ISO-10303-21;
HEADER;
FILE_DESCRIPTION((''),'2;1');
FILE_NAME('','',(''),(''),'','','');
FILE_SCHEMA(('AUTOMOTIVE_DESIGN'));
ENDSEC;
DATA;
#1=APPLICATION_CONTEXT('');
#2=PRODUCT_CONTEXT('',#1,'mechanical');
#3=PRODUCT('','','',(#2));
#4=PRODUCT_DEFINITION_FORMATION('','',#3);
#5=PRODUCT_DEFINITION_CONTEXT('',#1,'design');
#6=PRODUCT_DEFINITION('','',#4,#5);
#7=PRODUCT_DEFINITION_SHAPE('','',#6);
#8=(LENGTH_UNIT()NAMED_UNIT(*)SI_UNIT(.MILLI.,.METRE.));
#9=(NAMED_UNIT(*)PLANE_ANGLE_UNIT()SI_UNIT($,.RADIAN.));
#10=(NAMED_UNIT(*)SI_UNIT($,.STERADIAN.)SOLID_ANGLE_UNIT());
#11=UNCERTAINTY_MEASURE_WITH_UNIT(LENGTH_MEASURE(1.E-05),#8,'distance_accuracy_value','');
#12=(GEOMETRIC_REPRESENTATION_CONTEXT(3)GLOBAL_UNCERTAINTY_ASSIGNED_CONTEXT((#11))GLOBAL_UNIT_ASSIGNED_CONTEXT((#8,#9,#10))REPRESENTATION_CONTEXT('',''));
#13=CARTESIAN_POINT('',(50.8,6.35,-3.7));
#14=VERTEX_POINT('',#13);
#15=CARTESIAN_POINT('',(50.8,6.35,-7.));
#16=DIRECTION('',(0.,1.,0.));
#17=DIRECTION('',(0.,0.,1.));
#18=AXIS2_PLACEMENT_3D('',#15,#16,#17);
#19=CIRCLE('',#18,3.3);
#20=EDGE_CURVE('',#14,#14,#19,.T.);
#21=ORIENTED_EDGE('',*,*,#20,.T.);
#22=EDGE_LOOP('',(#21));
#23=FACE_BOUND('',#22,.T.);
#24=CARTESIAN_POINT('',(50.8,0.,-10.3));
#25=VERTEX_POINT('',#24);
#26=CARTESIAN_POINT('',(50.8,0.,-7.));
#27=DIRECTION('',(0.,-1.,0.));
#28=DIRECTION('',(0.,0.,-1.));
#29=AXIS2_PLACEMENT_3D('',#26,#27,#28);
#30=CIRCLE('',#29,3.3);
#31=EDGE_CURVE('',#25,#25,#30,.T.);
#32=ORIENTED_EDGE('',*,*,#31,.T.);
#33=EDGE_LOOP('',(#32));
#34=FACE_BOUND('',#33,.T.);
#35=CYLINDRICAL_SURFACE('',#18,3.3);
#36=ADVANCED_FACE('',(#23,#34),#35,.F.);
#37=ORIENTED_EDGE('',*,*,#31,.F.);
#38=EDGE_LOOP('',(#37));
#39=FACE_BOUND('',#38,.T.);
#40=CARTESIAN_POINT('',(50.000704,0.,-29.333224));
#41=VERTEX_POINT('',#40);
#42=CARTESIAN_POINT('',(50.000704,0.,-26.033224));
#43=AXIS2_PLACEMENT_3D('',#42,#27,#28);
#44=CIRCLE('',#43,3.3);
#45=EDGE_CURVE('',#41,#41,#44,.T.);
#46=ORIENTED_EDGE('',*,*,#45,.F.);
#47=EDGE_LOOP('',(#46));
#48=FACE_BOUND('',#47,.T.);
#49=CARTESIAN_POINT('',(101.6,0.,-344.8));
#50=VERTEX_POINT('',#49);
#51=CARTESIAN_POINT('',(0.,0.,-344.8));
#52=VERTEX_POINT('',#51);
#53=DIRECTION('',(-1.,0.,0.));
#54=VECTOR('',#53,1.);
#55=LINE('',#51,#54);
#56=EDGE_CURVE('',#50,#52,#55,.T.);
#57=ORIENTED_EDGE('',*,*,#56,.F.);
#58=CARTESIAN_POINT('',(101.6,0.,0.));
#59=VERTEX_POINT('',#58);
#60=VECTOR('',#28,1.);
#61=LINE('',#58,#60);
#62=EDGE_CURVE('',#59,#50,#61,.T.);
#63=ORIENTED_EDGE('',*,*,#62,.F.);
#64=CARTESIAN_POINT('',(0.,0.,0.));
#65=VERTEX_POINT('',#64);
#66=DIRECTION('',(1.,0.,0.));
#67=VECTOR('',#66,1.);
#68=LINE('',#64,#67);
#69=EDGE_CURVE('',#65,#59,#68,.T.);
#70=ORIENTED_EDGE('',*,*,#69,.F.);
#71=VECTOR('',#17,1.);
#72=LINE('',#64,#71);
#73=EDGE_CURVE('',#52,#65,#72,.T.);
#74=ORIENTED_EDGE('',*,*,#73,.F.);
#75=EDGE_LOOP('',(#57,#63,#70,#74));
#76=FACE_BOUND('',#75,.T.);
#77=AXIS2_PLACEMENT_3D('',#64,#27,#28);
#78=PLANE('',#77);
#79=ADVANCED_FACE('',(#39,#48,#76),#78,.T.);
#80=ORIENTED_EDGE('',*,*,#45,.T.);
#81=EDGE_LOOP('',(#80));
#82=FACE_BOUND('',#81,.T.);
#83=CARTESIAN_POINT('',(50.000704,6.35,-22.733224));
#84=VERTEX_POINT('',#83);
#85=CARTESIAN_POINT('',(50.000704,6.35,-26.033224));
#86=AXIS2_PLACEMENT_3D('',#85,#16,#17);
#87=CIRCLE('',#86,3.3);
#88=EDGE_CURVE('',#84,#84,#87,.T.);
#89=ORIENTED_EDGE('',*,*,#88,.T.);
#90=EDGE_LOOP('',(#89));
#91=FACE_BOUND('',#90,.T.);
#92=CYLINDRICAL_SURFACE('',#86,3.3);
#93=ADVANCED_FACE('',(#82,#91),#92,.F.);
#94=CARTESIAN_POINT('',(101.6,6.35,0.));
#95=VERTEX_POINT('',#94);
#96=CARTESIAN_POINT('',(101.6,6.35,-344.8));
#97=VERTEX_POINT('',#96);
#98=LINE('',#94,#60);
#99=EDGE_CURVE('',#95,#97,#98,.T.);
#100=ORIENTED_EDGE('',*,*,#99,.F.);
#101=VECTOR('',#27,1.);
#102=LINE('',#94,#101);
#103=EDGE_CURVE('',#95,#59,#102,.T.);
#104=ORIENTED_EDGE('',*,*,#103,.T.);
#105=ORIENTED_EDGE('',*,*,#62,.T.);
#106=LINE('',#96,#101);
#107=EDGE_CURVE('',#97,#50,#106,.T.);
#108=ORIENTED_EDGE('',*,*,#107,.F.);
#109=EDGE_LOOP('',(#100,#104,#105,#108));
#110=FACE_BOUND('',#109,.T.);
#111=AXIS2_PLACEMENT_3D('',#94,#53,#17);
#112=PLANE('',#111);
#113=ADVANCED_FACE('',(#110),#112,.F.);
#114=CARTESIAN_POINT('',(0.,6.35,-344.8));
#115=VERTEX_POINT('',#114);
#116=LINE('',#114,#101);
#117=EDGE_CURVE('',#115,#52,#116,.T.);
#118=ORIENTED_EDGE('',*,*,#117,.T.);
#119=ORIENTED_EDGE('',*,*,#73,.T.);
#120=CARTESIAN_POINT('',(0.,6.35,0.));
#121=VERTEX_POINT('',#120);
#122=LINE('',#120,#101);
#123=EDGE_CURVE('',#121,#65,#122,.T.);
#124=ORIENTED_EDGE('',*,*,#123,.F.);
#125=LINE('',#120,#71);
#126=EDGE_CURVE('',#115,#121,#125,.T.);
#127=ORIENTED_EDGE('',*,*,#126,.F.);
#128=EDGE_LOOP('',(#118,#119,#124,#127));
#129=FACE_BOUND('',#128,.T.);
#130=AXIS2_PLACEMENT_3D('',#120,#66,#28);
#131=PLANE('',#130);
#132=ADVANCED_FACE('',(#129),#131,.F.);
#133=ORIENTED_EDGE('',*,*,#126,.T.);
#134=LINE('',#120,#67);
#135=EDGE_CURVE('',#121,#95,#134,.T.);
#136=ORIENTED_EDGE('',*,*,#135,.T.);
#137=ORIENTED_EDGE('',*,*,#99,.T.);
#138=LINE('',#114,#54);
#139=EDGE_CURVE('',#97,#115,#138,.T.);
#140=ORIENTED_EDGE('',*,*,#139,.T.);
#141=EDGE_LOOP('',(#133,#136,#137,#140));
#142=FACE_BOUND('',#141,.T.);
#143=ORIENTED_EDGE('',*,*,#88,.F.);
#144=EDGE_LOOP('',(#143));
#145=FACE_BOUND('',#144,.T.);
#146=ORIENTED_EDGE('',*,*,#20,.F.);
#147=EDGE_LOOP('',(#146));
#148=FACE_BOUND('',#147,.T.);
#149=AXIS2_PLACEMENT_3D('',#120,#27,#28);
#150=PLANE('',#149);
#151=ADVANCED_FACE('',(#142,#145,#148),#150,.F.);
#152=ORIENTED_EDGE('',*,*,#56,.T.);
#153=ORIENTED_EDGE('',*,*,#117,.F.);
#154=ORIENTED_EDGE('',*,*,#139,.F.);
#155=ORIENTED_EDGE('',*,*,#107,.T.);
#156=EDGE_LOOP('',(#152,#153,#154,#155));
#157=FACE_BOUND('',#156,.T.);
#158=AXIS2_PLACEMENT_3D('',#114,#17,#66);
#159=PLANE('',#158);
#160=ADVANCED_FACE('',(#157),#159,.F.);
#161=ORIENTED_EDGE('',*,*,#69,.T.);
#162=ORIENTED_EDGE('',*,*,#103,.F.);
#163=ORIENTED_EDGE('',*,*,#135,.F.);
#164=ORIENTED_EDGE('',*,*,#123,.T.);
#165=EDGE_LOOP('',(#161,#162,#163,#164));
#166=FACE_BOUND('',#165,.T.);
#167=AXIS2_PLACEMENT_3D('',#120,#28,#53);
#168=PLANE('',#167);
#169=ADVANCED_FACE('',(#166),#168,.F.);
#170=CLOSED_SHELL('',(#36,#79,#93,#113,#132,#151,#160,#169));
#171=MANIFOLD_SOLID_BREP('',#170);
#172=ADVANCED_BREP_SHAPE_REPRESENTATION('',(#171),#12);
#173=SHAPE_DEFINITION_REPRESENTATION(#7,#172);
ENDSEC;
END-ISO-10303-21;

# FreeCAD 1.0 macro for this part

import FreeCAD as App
import Part
import Sketcher

V = App.Vector


def add_polygon(sketch, points):
    """Adds a closed chain of lines whose ends are joined by coincident constraints."""
    first, n = sketch.GeometryCount, len(points)
    for a, b in zip(points, points[1:] + points[:1]):
        sketch.addGeometry(Part.LineSegment(App.Vector(*a, 0), App.Vector(*b, 0)), False)
    for i in range(n):
        sketch.addConstraint(Sketcher.Constraint("Coincident", first + i, 2, first + (i + 1) % n, 1))

doc = App.newDocument("Part")
body = doc.addObject("PartDesign::Body", "Body")

# Sketch on XZ plane
sketch1 = body.newObject("Sketcher::SketchObject", "Sketch")
sketch1.AttachmentSupport = (doc.getObject("XZ_Plane"), [""])
sketch1.MapMode = "FlatFace"
add_polygon(sketch1, [(0, -345), (0, 0), (102, 0), (102, -345)])  # lines 0-3
sketch1.addConstraint(Sketcher.Constraint("Vertical", 0))
sketch1.addConstraint(Sketcher.Constraint("Horizontal", 1))
sketch1.addConstraint(Sketcher.Constraint("Vertical", 2))
sketch1.addConstraint(Sketcher.Constraint("Horizontal", 3))
sketch1.addConstraint(Sketcher.Constraint("Coincident", 0, 2, -1, 1))
sketch1.addConstraint(Sketcher.Constraint("DistanceX", 1, 1, 1, 2, 101.6))
sketch1.addConstraint(Sketcher.Constraint("DistanceY", 0, 1, 0, 2, 344.8))
pad1 = body.newObject("PartDesign::Pad", "Pad")
pad1.Profile = sketch1
pad1.Length = 6.35
pad1.Reversed = True

# Sketch on XZ plane
sketch2 = body.newObject("Sketcher::SketchObject", "Sketch001")
sketch2.AttachmentSupport = (doc.getObject("XZ_Plane"), [""])
sketch2.MapMode = "FlatFace"
sketch2.AttachmentOffset = App.Placement(V(0, 0, -6.35), App.Rotation())
sketch2.addGeometry(Part.Circle(V(50, -26, 0), V(0, 0, 1), 3.3), False)
sketch2.addGeometry(Part.Circle(V(50.8, -7, 0), V(0, 0, 1), 3.3), False)
sketch2.addConstraint(Sketcher.Constraint("Equal", 0, 1))
sketch2.addConstraint(Sketcher.Constraint("Diameter", 0, 6.6))
sketch2.addConstraint(Sketcher.Constraint("DistanceY", 1, 3, -1, 1, 7.0))
sketch2.addConstraint(Sketcher.Constraint("DistanceX", -1, 1, 1, 3, 50.8))
sketch2.addConstraint(Sketcher.Constraint("DistanceX", -1, 1, 0, 3, 50.000704))
sketch2.addConstraint(Sketcher.Constraint("DistanceY", 0, 3, -1, 1, 26.033224))
doc.recompute()
hole = body.newObject("PartDesign::Hole", "Hole")
hole.Profile = sketch2
hole.ThreadType = "None"
hole.Diameter = 6.6
hole.DepthType = "Dimension"
hole.Depth = 12.4
hole.DrillPoint = "Angled"
hole.DrillPointAngle = 118
hole.Reversed = True

doc.recompute()
